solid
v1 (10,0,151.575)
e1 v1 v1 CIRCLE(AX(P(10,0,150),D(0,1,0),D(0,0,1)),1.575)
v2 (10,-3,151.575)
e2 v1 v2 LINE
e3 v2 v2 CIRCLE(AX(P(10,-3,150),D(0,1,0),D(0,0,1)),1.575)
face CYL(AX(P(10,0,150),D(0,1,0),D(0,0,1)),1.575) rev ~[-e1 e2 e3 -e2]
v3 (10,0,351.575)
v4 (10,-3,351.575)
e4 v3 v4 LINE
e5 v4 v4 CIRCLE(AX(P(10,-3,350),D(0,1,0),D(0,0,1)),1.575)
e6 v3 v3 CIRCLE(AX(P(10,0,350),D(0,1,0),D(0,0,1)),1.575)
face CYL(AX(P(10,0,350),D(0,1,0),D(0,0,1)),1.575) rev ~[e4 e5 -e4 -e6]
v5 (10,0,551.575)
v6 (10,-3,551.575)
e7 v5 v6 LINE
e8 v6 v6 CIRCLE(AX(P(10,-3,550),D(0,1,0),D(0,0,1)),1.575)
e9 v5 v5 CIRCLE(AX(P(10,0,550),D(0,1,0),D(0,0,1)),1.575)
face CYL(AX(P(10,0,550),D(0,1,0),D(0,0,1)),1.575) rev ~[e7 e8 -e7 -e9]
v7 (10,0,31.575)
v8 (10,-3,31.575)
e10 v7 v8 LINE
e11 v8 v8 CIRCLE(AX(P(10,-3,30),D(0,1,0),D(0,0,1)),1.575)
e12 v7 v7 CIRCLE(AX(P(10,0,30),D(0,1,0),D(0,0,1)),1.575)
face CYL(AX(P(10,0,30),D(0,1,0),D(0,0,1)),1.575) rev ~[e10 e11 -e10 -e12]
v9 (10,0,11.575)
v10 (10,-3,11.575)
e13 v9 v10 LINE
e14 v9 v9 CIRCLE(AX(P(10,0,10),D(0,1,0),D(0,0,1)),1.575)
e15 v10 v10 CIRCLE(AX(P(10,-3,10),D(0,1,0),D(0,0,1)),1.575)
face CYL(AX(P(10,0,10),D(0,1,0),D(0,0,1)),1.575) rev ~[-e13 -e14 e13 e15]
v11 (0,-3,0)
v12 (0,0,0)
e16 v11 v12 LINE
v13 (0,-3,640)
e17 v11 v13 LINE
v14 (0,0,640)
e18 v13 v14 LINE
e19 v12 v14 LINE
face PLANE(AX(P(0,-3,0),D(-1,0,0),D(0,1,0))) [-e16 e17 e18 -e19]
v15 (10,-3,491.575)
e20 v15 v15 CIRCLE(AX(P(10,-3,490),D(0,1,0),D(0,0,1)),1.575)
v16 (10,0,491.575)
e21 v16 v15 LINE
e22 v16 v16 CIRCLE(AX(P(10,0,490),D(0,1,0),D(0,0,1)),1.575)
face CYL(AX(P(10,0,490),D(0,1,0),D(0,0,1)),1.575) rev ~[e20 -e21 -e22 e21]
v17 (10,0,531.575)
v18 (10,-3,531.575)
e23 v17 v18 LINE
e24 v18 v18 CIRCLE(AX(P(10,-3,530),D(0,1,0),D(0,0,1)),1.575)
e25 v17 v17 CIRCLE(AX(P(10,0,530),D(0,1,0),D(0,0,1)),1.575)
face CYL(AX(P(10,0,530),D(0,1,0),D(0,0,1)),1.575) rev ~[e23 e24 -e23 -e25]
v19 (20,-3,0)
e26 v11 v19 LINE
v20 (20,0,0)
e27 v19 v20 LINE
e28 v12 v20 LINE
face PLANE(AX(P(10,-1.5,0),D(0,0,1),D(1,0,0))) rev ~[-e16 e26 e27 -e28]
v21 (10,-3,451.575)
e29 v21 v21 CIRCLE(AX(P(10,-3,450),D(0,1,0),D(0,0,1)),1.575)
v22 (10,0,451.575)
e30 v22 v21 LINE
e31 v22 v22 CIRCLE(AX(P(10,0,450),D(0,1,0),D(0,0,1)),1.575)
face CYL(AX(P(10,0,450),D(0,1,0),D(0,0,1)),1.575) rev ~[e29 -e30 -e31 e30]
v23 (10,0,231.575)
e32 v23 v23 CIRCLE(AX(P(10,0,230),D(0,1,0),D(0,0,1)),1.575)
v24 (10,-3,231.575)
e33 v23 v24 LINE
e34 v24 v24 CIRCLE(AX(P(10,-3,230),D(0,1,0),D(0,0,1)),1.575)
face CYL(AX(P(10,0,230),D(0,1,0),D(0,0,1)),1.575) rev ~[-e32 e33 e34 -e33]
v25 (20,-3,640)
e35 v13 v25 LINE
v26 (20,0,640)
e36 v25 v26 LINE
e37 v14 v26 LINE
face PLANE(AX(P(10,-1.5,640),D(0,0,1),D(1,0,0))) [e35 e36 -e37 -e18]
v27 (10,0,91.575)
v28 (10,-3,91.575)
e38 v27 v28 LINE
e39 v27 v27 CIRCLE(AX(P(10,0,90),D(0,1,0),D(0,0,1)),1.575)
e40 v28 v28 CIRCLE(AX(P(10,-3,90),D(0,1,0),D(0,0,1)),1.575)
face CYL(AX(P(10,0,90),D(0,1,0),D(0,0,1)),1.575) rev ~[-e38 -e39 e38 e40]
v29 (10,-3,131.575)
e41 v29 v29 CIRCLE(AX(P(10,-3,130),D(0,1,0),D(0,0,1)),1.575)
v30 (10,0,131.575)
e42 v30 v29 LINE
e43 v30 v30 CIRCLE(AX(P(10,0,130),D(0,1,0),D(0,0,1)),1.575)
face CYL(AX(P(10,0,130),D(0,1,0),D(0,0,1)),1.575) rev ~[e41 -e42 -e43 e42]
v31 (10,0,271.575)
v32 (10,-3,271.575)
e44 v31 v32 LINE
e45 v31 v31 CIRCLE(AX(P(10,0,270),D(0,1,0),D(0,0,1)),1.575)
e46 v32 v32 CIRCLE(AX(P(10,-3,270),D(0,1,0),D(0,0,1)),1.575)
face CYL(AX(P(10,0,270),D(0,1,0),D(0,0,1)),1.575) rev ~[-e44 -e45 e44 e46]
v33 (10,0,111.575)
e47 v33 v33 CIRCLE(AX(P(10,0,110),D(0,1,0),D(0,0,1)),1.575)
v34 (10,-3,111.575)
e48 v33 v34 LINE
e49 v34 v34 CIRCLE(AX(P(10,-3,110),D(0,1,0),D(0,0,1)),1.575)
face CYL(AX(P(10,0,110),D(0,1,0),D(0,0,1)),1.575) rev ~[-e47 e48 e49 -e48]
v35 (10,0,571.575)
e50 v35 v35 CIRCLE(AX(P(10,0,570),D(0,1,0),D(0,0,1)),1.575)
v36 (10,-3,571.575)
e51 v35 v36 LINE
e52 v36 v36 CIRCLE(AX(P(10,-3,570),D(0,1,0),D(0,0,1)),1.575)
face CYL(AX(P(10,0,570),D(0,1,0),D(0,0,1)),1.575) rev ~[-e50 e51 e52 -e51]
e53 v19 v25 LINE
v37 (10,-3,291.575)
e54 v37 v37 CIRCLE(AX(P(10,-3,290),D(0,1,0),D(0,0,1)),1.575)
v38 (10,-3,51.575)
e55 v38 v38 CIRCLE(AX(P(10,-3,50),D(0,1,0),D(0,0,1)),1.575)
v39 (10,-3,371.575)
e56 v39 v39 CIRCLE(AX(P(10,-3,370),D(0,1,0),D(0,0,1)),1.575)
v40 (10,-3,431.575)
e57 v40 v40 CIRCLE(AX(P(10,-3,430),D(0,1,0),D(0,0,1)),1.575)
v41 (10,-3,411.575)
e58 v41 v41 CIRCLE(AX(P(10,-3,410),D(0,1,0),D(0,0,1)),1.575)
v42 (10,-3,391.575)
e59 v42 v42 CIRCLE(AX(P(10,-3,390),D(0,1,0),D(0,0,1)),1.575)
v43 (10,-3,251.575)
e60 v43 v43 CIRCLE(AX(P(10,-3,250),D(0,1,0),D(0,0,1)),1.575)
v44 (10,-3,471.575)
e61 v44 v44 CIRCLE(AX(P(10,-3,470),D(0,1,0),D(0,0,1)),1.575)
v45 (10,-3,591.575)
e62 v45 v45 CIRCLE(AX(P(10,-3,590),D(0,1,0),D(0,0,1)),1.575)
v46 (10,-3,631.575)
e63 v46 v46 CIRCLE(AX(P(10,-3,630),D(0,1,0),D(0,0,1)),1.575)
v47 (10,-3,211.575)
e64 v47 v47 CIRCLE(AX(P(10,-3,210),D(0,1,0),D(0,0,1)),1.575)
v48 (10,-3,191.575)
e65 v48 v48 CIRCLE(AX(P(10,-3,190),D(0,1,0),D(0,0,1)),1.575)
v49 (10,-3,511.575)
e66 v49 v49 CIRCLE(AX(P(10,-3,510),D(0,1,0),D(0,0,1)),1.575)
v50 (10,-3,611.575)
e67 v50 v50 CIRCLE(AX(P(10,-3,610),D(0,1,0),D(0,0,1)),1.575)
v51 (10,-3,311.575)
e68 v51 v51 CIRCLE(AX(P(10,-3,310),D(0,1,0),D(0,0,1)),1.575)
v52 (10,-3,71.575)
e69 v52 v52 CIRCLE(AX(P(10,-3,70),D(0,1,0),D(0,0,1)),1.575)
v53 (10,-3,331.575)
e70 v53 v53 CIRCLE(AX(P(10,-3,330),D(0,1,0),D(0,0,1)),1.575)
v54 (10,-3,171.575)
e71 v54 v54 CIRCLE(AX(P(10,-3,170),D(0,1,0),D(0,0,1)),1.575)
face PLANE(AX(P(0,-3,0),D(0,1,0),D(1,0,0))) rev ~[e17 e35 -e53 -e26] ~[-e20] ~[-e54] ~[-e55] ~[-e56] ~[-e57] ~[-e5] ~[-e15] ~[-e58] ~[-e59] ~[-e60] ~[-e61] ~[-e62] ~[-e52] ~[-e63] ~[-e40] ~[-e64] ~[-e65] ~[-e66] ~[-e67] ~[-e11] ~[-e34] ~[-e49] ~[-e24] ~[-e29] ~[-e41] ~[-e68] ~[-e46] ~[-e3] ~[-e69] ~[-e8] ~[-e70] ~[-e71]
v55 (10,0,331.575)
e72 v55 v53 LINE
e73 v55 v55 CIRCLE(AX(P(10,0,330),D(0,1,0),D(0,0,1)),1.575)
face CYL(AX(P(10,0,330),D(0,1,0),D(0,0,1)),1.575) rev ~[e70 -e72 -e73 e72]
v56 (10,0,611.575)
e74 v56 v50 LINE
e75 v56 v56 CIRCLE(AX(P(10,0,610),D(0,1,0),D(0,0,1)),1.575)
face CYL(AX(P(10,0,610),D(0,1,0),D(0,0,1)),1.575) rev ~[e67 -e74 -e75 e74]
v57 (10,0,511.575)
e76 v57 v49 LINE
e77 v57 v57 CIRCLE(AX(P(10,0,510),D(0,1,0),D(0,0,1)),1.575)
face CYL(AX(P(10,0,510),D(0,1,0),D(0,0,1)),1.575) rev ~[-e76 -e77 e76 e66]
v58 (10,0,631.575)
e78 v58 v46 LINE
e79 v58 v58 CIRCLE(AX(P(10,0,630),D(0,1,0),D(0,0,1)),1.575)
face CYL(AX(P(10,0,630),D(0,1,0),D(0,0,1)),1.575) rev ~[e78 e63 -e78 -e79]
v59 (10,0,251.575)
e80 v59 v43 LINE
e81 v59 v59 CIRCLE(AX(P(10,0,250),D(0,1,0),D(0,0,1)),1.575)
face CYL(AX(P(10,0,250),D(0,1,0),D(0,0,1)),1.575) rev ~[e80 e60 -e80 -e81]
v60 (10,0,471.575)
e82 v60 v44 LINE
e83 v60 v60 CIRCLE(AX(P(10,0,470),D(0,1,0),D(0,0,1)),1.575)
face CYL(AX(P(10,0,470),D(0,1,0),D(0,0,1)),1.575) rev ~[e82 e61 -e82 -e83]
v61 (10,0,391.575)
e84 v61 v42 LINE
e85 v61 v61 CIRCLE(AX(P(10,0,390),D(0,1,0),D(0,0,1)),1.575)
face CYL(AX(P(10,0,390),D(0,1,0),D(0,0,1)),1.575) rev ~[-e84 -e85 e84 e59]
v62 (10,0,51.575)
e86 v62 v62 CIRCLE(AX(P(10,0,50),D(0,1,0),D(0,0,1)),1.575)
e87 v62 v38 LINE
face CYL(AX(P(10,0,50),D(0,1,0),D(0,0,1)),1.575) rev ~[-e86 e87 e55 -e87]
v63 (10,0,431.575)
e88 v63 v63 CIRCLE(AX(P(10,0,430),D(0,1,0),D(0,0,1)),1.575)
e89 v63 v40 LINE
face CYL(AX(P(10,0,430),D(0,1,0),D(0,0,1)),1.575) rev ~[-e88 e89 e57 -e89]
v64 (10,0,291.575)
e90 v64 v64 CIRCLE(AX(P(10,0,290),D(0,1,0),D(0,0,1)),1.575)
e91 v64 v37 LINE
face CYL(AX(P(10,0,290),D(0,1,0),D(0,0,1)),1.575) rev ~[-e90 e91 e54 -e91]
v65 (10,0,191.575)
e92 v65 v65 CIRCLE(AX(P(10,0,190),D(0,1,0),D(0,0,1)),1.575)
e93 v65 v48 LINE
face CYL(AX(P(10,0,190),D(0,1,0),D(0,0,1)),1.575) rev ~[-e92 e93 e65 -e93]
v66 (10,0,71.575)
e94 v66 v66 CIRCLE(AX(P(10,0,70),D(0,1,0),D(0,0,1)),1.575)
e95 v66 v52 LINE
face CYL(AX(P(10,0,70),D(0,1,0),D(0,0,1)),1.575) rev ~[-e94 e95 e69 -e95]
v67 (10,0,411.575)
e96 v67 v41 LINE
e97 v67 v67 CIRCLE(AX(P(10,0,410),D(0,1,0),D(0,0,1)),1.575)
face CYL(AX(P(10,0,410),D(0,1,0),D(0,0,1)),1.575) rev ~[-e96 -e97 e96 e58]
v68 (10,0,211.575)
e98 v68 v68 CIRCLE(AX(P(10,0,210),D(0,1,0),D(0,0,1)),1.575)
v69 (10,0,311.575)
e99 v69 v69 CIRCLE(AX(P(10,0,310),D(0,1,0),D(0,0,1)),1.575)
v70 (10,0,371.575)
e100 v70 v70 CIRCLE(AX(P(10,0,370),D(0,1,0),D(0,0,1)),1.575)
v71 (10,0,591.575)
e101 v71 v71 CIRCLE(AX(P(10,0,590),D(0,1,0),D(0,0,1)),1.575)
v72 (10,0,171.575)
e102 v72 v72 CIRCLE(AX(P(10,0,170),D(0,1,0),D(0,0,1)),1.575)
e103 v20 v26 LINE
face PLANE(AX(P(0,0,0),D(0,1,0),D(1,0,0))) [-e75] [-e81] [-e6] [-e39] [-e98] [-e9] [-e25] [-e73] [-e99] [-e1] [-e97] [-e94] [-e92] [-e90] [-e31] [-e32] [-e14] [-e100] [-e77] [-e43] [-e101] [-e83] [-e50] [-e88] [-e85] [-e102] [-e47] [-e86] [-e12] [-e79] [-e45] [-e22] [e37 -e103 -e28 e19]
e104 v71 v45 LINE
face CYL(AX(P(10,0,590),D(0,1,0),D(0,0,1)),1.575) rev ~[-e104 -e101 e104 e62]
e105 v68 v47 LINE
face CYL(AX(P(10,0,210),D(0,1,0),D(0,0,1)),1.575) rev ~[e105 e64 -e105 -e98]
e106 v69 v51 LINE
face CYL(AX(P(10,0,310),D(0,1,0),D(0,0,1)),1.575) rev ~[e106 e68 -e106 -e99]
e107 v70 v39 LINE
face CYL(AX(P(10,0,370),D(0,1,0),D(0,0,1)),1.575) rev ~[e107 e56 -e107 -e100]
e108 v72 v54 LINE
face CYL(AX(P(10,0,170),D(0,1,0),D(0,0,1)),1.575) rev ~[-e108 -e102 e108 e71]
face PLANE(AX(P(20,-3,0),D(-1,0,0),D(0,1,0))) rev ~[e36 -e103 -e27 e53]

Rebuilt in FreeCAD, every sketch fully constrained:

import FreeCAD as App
import Part
import Sketcher

V = App.Vector

doc = App.newDocument("Part")
params = doc.addObject("Spreadsheet::Sheet", "Params")
for row, (alias, value) in enumerate([
    ("sketch1_width", "20 mm"),
    ("sketch1_height", "3 mm"),
    ("pad1_length", "640 mm"),
    ("sketch2_diameter", "3.15 mm"),
], start=1):
    params.set(f"A{row}", alias)
    params.set(f"B{row}", "=" + value)
    params.setAlias(f"B{row}", alias)

body = doc.addObject("PartDesign::Body", "Body")

sketch1 = body.newObject("Sketcher::SketchObject", "Sketch")
sketch1.AttachmentSupport = (doc.getObject("XY_Plane"), [""])
sketch1.MapMode = "FlatFace"
sketch1.addGeometry(Part.LineSegment(V(0, 0, 0), V(0, -3, 0)), False)
sketch1.addGeometry(Part.LineSegment(V(0, -3, 0), V(20, -3, 0)), False)
sketch1.addGeometry(Part.LineSegment(V(20, -3, 0), V(20, 0, 0)), False)
sketch1.addGeometry(Part.LineSegment(V(20, 0, 0), V(0, 0, 0)), False)
sketch1.addConstraint(Sketcher.Constraint("Coincident", 0, 2, 1, 1))
sketch1.addConstraint(Sketcher.Constraint("Coincident", 1, 2, 2, 1))
sketch1.addConstraint(Sketcher.Constraint("Coincident", 2, 2, 3, 1))
sketch1.addConstraint(Sketcher.Constraint("Coincident", 3, 2, 0, 1))
sketch1.addConstraint(Sketcher.Constraint("Vertical", 0))
sketch1.addConstraint(Sketcher.Constraint("Horizontal", 1))
sketch1.addConstraint(Sketcher.Constraint("Vertical", 2))
sketch1.addConstraint(Sketcher.Constraint("Horizontal", 3))
sketch1.addConstraint(Sketcher.Constraint("Coincident", 3, 2, -1, 1))
sketch1.addConstraint(Sketcher.Constraint("DistanceX", 1, 1, 1, 2, 20.0))
sketch1.addConstraint(Sketcher.Constraint("DistanceY", 0, 2, 0, 1, 3.0))
sketch1.setExpression("Constraints[9]", "Params.sketch1_width")
sketch1.setExpression("Constraints[10]", "Params.sketch1_height")
pad1 = body.newObject("PartDesign::Pad", "Pad")
pad1.Profile = sketch1
pad1.setExpression("Length", "Params.pad1_length")

sketch2 = body.newObject("Sketcher::SketchObject", "Sketch001")
sketch2.AttachmentSupport = (doc.getObject("XZ_Plane"), [""])
sketch2.MapMode = "FlatFace"
sketch2.addGeometry(Part.Circle(V(10, 10, 0), V(0, 0, 1), 1.575), False)
sketch2.addGeometry(Part.Circle(V(10, 30, 0), V(0, 0, 1), 1.575), False)
sketch2.addGeometry(Part.Circle(V(10, 50, 0), V(0, 0, 1), 1.575), False)
sketch2.addGeometry(Part.Circle(V(10, 70, 0), V(0, 0, 1), 1.575), False)
sketch2.addGeometry(Part.Circle(V(10, 90, 0), V(0, 0, 1), 1.575), False)
sketch2.addGeometry(Part.Circle(V(10, 110, 0), V(0, 0, 1), 1.575), False)
sketch2.addGeometry(Part.Circle(V(10, 130, 0), V(0, 0, 1), 1.575), False)
sketch2.addGeometry(Part.Circle(V(10, 150, 0), V(0, 0, 1), 1.575), False)
sketch2.addGeometry(Part.Circle(V(10, 170, 0), V(0, 0, 1), 1.575), False)
sketch2.addGeometry(Part.Circle(V(10, 190, 0), V(0, 0, 1), 1.575), False)
sketch2.addGeometry(Part.Circle(V(10, 210, 0), V(0, 0, 1), 1.575), False)
sketch2.addGeometry(Part.Circle(V(10, 230, 0), V(0, 0, 1), 1.575), False)
sketch2.addGeometry(Part.Circle(V(10, 250, 0), V(0, 0, 1), 1.575), False)
sketch2.addGeometry(Part.Circle(V(10, 270, 0), V(0, 0, 1), 1.575), False)
sketch2.addGeometry(Part.Circle(V(10, 290, 0), V(0, 0, 1), 1.575), False)
sketch2.addGeometry(Part.Circle(V(10, 310, 0), V(0, 0, 1), 1.575), False)
sketch2.addGeometry(Part.Circle(V(10, 330, 0), V(0, 0, 1), 1.575), False)
sketch2.addGeometry(Part.Circle(V(10, 350, 0), V(0, 0, 1), 1.575), False)
sketch2.addGeometry(Part.Circle(V(10, 370, 0), V(0, 0, 1), 1.575), False)
sketch2.addGeometry(Part.Circle(V(10, 390, 0), V(0, 0, 1), 1.575), False)
sketch2.addGeometry(Part.Circle(V(10, 410, 0), V(0, 0, 1), 1.575), False)
sketch2.addGeometry(Part.Circle(V(10, 430, 0), V(0, 0, 1), 1.575), False)
sketch2.addGeometry(Part.Circle(V(10, 450, 0), V(0, 0, 1), 1.575), False)
sketch2.addGeometry(Part.Circle(V(10, 470, 0), V(0, 0, 1), 1.575), False)
sketch2.addGeometry(Part.Circle(V(10, 490, 0), V(0, 0, 1), 1.575), False)
sketch2.addGeometry(Part.Circle(V(10, 510, 0), V(0, 0, 1), 1.575), False)
sketch2.addGeometry(Part.Circle(V(10, 530, 0), V(0, 0, 1), 1.575), False)
sketch2.addGeometry(Part.Circle(V(10, 550, 0), V(0, 0, 1), 1.575), False)
sketch2.addGeometry(Part.Circle(V(10, 570, 0), V(0, 0, 1), 1.575), False)
sketch2.addGeometry(Part.Circle(V(10, 590, 0), V(0, 0, 1), 1.575), False)
sketch2.addGeometry(Part.Circle(V(10, 610, 0), V(0, 0, 1), 1.575), False)
sketch2.addGeometry(Part.Circle(V(10, 630, 0), V(0, 0, 1), 1.575), False)
sketch2.addConstraint(Sketcher.Constraint("Equal", 0, 1))
sketch2.addConstraint(Sketcher.Constraint("Equal", 1, 2))
sketch2.addConstraint(Sketcher.Constraint("Equal", 2, 3))
sketch2.addConstraint(Sketcher.Constraint("Equal", 3, 4))
sketch2.addConstraint(Sketcher.Constraint("Equal", 4, 5))
sketch2.addConstraint(Sketcher.Constraint("Equal", 5, 6))
sketch2.addConstraint(Sketcher.Constraint("Equal", 6, 7))
sketch2.addConstraint(Sketcher.Constraint("Equal", 7, 8))
sketch2.addConstraint(Sketcher.Constraint("Equal", 8, 9))
sketch2.addConstraint(Sketcher.Constraint("Equal", 9, 10))
sketch2.addConstraint(Sketcher.Constraint("Equal", 10, 11))
sketch2.addConstraint(Sketcher.Constraint("Equal", 11, 12))
sketch2.addConstraint(Sketcher.Constraint("Equal", 12, 13))
sketch2.addConstraint(Sketcher.Constraint("Equal", 13, 14))
sketch2.addConstraint(Sketcher.Constraint("Equal", 14, 15))
sketch2.addConstraint(Sketcher.Constraint("Equal", 15, 16))
sketch2.addConstraint(Sketcher.Constraint("Equal", 16, 17))
sketch2.addConstraint(Sketcher.Constraint("Equal", 17, 18))
sketch2.addConstraint(Sketcher.Constraint("Equal", 18, 19))
sketch2.addConstraint(Sketcher.Constraint("Equal", 19, 20))
sketch2.addConstraint(Sketcher.Constraint("Equal", 20, 21))
sketch2.addConstraint(Sketcher.Constraint("Equal", 21, 22))
sketch2.addConstraint(Sketcher.Constraint("Equal", 22, 23))
sketch2.addConstraint(Sketcher.Constraint("Equal", 23, 24))
sketch2.addConstraint(Sketcher.Constraint("Equal", 24, 25))
sketch2.addConstraint(Sketcher.Constraint("Equal", 25, 26))
sketch2.addConstraint(Sketcher.Constraint("Equal", 26, 27))
sketch2.addConstraint(Sketcher.Constraint("Equal", 27, 28))
sketch2.addConstraint(Sketcher.Constraint("Equal", 28, 29))
sketch2.addConstraint(Sketcher.Constraint("Equal", 29, 30))
sketch2.addConstraint(Sketcher.Constraint("Equal", 30, 31))
sketch2.addConstraint(Sketcher.Constraint("Vertical", 0, 3, 1, 3))
sketch2.addConstraint(Sketcher.Constraint("Vertical", 1, 3, 2, 3))
sketch2.addConstraint(Sketcher.Constraint("Vertical", 2, 3, 3, 3))
sketch2.addConstraint(Sketcher.Constraint("Vertical", 3, 3, 4, 3))
sketch2.addConstraint(Sketcher.Constraint("Vertical", 4, 3, 5, 3))
sketch2.addConstraint(Sketcher.Constraint("Vertical", 5, 3, 6, 3))
sketch2.addConstraint(Sketcher.Constraint("Vertical", 6, 3, 7, 3))
sketch2.addConstraint(Sketcher.Constraint("Vertical", 7, 3, 8, 3))
sketch2.addConstraint(Sketcher.Constraint("Vertical", 8, 3, 9, 3))
sketch2.addConstraint(Sketcher.Constraint("Vertical", 9, 3, 10, 3))
sketch2.addConstraint(Sketcher.Constraint("Vertical", 10, 3, 11, 3))
sketch2.addConstraint(Sketcher.Constraint("Vertical", 11, 3, 12, 3))
sketch2.addConstraint(Sketcher.Constraint("Vertical", 12, 3, 13, 3))
sketch2.addConstraint(Sketcher.Constraint("Vertical", 13, 3, 14, 3))
sketch2.addConstraint(Sketcher.Constraint("Vertical", 14, 3, 15, 3))
sketch2.addConstraint(Sketcher.Constraint("Vertical", 15, 3, 16, 3))
sketch2.addConstraint(Sketcher.Constraint("Vertical", 16, 3, 17, 3))
sketch2.addConstraint(Sketcher.Constraint("Vertical", 17, 3, 18, 3))
sketch2.addConstraint(Sketcher.Constraint("Vertical", 18, 3, 19, 3))
sketch2.addConstraint(Sketcher.Constraint("Vertical", 19, 3, 20, 3))
sketch2.addConstraint(Sketcher.Constraint("Vertical", 20, 3, 21, 3))
sketch2.addConstraint(Sketcher.Constraint("Vertical", 21, 3, 22, 3))
sketch2.addConstraint(Sketcher.Constraint("Vertical", 22, 3, 23, 3))
sketch2.addConstraint(Sketcher.Constraint("Vertical", 23, 3, 24, 3))
sketch2.addConstraint(Sketcher.Constraint("Vertical", 24, 3, 25, 3))
sketch2.addConstraint(Sketcher.Constraint("Vertical", 25, 3, 26, 3))
sketch2.addConstraint(Sketcher.Constraint("Vertical", 26, 3, 27, 3))
sketch2.addConstraint(Sketcher.Constraint("Vertical", 27, 3, 28, 3))
sketch2.addConstraint(Sketcher.Constraint("Vertical", 28, 3, 29, 3))
sketch2.addConstraint(Sketcher.Constraint("Vertical", 29, 3, 30, 3))
sketch2.addConstraint(Sketcher.Constraint("Vertical", 30, 3, 31, 3))
sketch2.addConstraint(Sketcher.Constraint("Diameter", 0, 3.15))
sketch2.addConstraint(Sketcher.Constraint("DistanceX", -1, 1, 0, 3, 10.0))
sketch2.addConstraint(Sketcher.Constraint("DistanceY", -1, 1, 0, 3, 10.0))
sketch2.addConstraint(Sketcher.Constraint("DistanceY", -1, 1, 1, 3, 30.0))
sketch2.addConstraint(Sketcher.Constraint("DistanceY", -1, 1, 2, 3, 50.0))
sketch2.addConstraint(Sketcher.Constraint("DistanceY", -1, 1, 3, 3, 70.0))
sketch2.addConstraint(Sketcher.Constraint("DistanceY", -1, 1, 4, 3, 90.0))
sketch2.addConstraint(Sketcher.Constraint("DistanceY", -1, 1, 5, 3, 110.0))
sketch2.addConstraint(Sketcher.Constraint("DistanceY", -1, 1, 6, 3, 130.0))
sketch2.addConstraint(Sketcher.Constraint("DistanceY", -1, 1, 7, 3, 150.0))
sketch2.addConstraint(Sketcher.Constraint("DistanceY", -1, 1, 8, 3, 170.0))
sketch2.addConstraint(Sketcher.Constraint("DistanceY", -1, 1, 9, 3, 190.0))
sketch2.addConstraint(Sketcher.Constraint("DistanceY", -1, 1, 10, 3, 210.0))
sketch2.addConstraint(Sketcher.Constraint("DistanceY", -1, 1, 11, 3, 230.0))
sketch2.addConstraint(Sketcher.Constraint("DistanceY", -1, 1, 12, 3, 250.0))
sketch2.addConstraint(Sketcher.Constraint("DistanceY", -1, 1, 13, 3, 270.0))
sketch2.addConstraint(Sketcher.Constraint("DistanceY", -1, 1, 14, 3, 290.0))
sketch2.addConstraint(Sketcher.Constraint("DistanceY", -1, 1, 15, 3, 310.0))
sketch2.addConstraint(Sketcher.Constraint("DistanceY", -1, 1, 16, 3, 330.0))
sketch2.addConstraint(Sketcher.Constraint("DistanceY", -1, 1, 17, 3, 350.0))
sketch2.addConstraint(Sketcher.Constraint("DistanceY", -1, 1, 18, 3, 370.0))
sketch2.addConstraint(Sketcher.Constraint("DistanceY", -1, 1, 19, 3, 390.0))
sketch2.addConstraint(Sketcher.Constraint("DistanceY", -1, 1, 20, 3, 410.0))
sketch2.addConstraint(Sketcher.Constraint("DistanceY", -1, 1, 21, 3, 430.0))
sketch2.addConstraint(Sketcher.Constraint("DistanceY", -1, 1, 22, 3, 450.0))
sketch2.addConstraint(Sketcher.Constraint("DistanceY", -1, 1, 23, 3, 470.0))
sketch2.addConstraint(Sketcher.Constraint("DistanceY", -1, 1, 24, 3, 490.0))
sketch2.addConstraint(Sketcher.Constraint("DistanceY", -1, 1, 25, 3, 510.0))
sketch2.addConstraint(Sketcher.Constraint("DistanceY", -1, 1, 26, 3, 530.0))
sketch2.addConstraint(Sketcher.Constraint("DistanceY", -1, 1, 27, 3, 550.0))
sketch2.addConstraint(Sketcher.Constraint("DistanceY", -1, 1, 28, 3, 570.0))
sketch2.addConstraint(Sketcher.Constraint("DistanceY", -1, 1, 29, 3, 590.0))
sketch2.addConstraint(Sketcher.Constraint("DistanceY", -1, 1, 30, 3, 610.0))
sketch2.addConstraint(Sketcher.Constraint("DistanceY", -1, 1, 31, 3, 630.0))
sketch2.setExpression("Constraints[62]", "Params.sketch2_diameter")
pocket1 = body.newObject("PartDesign::Pocket", "Pocket")
pocket1.Profile = sketch2
pocket1.Type = "ThroughAll"
pocket1.Reversed = True

doc.recompute()
